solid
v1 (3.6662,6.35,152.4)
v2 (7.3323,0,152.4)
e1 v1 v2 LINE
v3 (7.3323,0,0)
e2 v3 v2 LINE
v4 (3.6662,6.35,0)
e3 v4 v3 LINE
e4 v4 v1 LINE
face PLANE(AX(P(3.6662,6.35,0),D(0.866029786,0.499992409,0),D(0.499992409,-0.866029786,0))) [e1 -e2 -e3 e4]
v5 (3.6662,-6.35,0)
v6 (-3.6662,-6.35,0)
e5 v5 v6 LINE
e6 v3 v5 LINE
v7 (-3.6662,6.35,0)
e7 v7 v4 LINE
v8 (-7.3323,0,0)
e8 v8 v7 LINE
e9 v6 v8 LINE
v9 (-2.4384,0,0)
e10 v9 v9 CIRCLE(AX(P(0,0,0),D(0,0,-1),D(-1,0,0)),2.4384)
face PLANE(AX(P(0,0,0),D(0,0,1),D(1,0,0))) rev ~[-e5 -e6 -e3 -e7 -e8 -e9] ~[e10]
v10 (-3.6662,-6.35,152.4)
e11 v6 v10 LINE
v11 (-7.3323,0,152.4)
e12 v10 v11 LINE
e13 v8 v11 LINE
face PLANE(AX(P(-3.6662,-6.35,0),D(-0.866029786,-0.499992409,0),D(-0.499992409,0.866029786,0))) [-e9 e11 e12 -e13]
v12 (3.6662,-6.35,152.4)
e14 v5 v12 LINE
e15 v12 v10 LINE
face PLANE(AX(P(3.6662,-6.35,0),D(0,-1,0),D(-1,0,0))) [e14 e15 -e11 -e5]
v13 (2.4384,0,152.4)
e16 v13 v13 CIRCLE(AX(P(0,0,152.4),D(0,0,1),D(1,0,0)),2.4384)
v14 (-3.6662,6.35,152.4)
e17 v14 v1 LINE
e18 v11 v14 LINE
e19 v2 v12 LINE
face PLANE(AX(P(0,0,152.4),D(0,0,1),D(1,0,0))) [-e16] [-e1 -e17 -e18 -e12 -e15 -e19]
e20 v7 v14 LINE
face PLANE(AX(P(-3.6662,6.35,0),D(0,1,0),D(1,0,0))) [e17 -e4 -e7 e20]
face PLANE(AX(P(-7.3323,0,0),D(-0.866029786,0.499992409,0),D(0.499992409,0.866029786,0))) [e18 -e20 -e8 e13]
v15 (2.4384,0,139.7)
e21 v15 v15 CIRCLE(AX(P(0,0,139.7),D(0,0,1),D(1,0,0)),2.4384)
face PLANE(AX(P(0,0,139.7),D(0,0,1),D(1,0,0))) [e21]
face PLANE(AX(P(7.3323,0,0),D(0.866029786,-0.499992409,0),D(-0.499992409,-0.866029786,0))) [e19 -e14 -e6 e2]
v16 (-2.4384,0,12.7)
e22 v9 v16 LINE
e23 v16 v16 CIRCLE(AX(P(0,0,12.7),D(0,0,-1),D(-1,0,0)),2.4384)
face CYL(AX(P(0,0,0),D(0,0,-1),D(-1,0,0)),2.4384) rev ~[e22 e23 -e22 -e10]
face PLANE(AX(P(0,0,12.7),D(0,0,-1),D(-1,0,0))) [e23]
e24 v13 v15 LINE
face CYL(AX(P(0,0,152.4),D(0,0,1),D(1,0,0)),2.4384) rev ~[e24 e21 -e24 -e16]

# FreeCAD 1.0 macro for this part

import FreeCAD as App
import Part
import Sketcher
from FreeCAD import Vector
Q = App.Units.Quantity

doc = App.newDocument("Part")
body = doc.addObject("PartDesign::Body", "Body")

sketch1 = doc.addObject("Sketcher::SketchObject", "Sketch")
body.addObject(sketch1)
sketch1.AttachmentSupport = (doc.XY_Plane, [""])
sketch1.MapMode = "FlatFace"
sketch1.addGeometry(Part.LineSegment(Vector(7.3323, 0, 0), Vector(3.6662, 6.35, 0)), False)
sketch1.addGeometry(Part.LineSegment(Vector(3.6662, 6.35, 0), Vector(-3.6662, 6.35, 0)), False)
sketch1.addGeometry(Part.LineSegment(Vector(-3.6662, 6.35, 0), Vector(-7.3323, 0, 0)), False)
sketch1.addGeometry(Part.LineSegment(Vector(-7.3323, 0, 0), Vector(-3.6662, -6.35, 0)), False)
sketch1.addGeometry(Part.LineSegment(Vector(-3.6662, -6.35, 0), Vector(3.6662, -6.35, 0)), False)
sketch1.addGeometry(Part.LineSegment(Vector(3.6662, -6.35, 0), Vector(7.3323, 0, 0)), False)
sketch1.addConstraint(Sketcher.Constraint("Coincident", 0, 2, 1, 1))
sketch1.addConstraint(Sketcher.Constraint("Coincident", 1, 2, 2, 1))
sketch1.addConstraint(Sketcher.Constraint("Coincident", 2, 2, 3, 1))
sketch1.addConstraint(Sketcher.Constraint("Coincident", 3, 2, 4, 1))
sketch1.addConstraint(Sketcher.Constraint("Coincident", 4, 2, 5, 1))
sketch1.addConstraint(Sketcher.Constraint("Coincident", 5, 2, 0, 1))
sketch1.addConstraint(Sketcher.Constraint("Horizontal", 1))
sketch1.addConstraint(Sketcher.Constraint("Horizontal", 4))
sketch1.addConstraint(Sketcher.Constraint("Symmetric", 0, 2, 3, 2, -1, 1))
sketch1.addConstraint(Sketcher.Constraint("Symmetric", 2, 2, 5, 2, -1, 1))
sketch1.addConstraint(Sketcher.Constraint("PointOnObject", 2, 2, -1))
sketch1.addConstraint(Sketcher.Constraint("Parallel", 2, 5))
sketch1.addConstraint(Sketcher.Constraint("Vertical", 1, 2, 3, 2))
sketch1.addConstraint(Sketcher.Constraint("DistanceY", 3, 2, 1, 2, Q("0.5 in")))
sketch1.addConstraint(Sketcher.Constraint("Angle", 0, Q("119.9995 deg")))
sketch1.addConstraint(Sketcher.Constraint("DistanceX", 2, 2, 0, 2, Q("0.433 in")))
pad1 = doc.addObject("PartDesign::Pad", "Pad")
body.addObject(pad1)
pad1.Profile = sketch1
pad1.Length = Q("6 in")

sketch2 = doc.addObject("Sketcher::SketchObject", "Sketch001")
body.addObject(sketch2)
sketch2.AttachmentSupport = (doc.XY_Plane, [""])
sketch2.MapMode = "FlatFace"
sketch2.AttachmentOffset = App.Placement(Vector(0, 0, 6 * 25.4), App.Rotation())
sketch2.addGeometry(Part.Circle(Vector(0, 0, 0), Vector(0, 0, 1), 2.4384), False)
sketch2.addConstraint(Sketcher.Constraint("Coincident", 0, 3, -1, 1))
sketch2.addConstraint(Sketcher.Constraint("Diameter", 0, Q("0.192 in")))
pocket1 = doc.addObject("PartDesign::Pocket", "Pocket")
body.addObject(pocket1)
pocket1.Profile = sketch2
pocket1.Length = Q("0.5 in")

sketch3 = doc.addObject("Sketcher::SketchObject", "Sketch002")
body.addObject(sketch3)
sketch3.AttachmentSupport = (doc.XY_Plane, [""])
sketch3.MapMode = "FlatFace"
sketch3.addGeometry(Part.Circle(Vector(0, 0, 0), Vector(0, 0, 1), 2.4384), False)
sketch3.addConstraint(Sketcher.Constraint("Coincident", 0, 3, -1, 1))
sketch3.addConstraint(Sketcher.Constraint("Diameter", 0, Q("0.192 in")))
pocket2 = doc.addObject("PartDesign::Pocket", "Pocket001")
body.addObject(pocket2)
pocket2.Profile = sketch3
pocket2.Length = Q("0.5 in")
pocket2.Reversed = True

doc.recompute()
